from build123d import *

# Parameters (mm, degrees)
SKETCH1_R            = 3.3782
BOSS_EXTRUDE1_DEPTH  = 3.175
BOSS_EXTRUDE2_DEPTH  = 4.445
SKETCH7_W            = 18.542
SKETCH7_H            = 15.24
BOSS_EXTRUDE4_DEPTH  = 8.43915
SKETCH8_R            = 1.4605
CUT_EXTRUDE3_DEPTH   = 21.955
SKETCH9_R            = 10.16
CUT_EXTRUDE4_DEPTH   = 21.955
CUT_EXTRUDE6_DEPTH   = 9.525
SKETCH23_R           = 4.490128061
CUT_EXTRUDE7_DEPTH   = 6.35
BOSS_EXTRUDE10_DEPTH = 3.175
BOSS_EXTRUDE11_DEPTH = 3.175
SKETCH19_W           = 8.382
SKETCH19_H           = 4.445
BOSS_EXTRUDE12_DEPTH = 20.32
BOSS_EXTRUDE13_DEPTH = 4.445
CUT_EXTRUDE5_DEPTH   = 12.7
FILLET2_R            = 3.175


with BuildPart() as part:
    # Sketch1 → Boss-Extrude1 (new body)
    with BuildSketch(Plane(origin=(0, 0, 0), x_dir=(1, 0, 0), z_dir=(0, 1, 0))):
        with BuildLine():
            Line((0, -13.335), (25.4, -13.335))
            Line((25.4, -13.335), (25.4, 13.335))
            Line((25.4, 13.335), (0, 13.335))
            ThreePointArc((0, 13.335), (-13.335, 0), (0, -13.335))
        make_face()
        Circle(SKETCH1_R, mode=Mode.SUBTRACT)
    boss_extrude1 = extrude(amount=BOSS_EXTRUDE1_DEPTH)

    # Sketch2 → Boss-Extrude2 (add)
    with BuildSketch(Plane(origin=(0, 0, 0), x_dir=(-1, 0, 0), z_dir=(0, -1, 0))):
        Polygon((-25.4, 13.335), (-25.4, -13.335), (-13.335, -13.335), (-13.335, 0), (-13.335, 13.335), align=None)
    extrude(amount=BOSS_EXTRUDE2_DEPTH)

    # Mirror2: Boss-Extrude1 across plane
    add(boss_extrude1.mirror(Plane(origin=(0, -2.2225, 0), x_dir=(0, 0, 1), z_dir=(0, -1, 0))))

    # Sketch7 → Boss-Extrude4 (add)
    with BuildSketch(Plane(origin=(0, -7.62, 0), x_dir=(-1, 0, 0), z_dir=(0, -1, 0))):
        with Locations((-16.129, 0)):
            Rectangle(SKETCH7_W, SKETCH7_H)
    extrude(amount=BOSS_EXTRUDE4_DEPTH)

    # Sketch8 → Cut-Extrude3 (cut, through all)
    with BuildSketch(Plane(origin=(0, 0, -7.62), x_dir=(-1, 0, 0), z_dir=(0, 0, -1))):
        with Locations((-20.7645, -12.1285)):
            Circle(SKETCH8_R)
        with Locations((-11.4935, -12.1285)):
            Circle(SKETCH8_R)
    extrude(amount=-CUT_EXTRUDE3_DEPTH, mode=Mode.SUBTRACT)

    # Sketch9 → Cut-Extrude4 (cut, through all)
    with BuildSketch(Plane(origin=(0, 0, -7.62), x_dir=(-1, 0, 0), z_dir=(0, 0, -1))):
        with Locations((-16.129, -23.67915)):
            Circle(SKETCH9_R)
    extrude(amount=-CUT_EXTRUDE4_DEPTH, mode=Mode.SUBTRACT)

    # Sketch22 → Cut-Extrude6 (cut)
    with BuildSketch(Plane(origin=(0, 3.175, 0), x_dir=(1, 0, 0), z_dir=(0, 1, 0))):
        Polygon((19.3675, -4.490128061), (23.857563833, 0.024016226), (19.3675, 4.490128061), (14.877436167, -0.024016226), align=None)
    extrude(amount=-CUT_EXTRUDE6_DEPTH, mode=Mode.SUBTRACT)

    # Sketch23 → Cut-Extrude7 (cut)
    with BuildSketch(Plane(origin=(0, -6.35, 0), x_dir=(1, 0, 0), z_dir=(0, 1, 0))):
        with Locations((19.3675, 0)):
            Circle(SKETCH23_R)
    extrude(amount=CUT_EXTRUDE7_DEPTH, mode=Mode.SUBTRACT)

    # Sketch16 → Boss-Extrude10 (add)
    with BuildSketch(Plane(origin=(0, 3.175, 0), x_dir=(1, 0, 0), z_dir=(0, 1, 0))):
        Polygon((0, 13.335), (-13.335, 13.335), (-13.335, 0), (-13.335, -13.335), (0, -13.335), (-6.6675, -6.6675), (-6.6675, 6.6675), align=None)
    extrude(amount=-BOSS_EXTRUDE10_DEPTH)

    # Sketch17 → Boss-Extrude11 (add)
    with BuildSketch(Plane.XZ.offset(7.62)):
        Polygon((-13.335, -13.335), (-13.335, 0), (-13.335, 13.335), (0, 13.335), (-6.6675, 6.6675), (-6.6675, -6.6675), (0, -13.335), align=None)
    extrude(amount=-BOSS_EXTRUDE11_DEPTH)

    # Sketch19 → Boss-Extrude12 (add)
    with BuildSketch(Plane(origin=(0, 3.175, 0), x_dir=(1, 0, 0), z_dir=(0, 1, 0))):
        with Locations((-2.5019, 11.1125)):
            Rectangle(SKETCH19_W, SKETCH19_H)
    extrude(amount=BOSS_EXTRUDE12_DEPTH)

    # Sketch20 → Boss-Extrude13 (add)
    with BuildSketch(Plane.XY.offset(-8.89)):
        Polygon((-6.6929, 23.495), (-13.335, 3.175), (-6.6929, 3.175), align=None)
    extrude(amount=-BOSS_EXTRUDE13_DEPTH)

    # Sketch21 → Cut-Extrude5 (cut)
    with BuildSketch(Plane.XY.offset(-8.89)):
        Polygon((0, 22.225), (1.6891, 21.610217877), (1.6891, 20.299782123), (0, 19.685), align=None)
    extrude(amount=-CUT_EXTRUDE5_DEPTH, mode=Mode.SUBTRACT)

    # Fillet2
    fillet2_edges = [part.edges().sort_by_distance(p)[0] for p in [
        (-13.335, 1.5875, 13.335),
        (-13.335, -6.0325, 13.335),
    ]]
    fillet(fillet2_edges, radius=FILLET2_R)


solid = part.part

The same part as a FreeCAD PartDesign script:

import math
import FreeCAD as App
import Part
import Sketcher
from FreeCAD import Vector
Q = App.Units.Quantity


def edges_at(feature, points):
    """Names of the edges that pass closest to the given points."""
    edges = feature.Shape.Edges
    near = lambda p: min(range(len(edges)), key=lambda i: edges[i].distToShape(Part.Vertex(*p))[0])
    return sorted({f"Edge{near(p) + 1}" for p in points})


def add_polygon(sketch, points):
    """Adds a closed chain of lines whose ends are joined by coincident constraints."""
    first, n = sketch.GeometryCount, len(points)
    for a, b in zip(points, points[1:] + points[:1]):
        sketch.addGeometry(Part.LineSegment(App.Vector(*a, 0), App.Vector(*b, 0)), False)
    for i in range(n):
        sketch.addConstraint(Sketcher.Constraint("Coincident", first + i, 2, first + (i + 1) % n, 1))

doc = App.newDocument("Part")
body = doc.addObject("PartDesign::Body", "Body")

# Sketch on XZ plane
sketch1 = body.newObject("Sketcher::SketchObject", "Sketch")
sketch1.AttachmentSupport = (doc.getObject("XZ_Plane"), [""])
sketch1.MapMode = "FlatFace"
sketch1.addGeometry([
    Part.LineSegment(Vector(0, 13.3, 0), Vector(25.4, 13.3, 0)),  # 0
    Part.LineSegment(Vector(25.4, 13.3, 0), Vector(25.4, -13.3, 0)),  # 1
    Part.LineSegment(Vector(25.4, -13.3, 0), Vector(0, -13.3, 0)),  # 2
    Part.ArcOfCircle(Part.Circle(Vector(0, 0, 0), Vector(0, 0, 1), 13.3), math.radians(90), math.radians(270)),  # 3
    Part.Circle(Vector(0, 0, 0), Vector(0, 0, 1), 3.4),  # 4
], False)
sketch1.addConstraint([
    Sketcher.Constraint("Coincident", 0, 2, 1, 1),
    Sketcher.Constraint("Coincident", 1, 2, 2, 1),
    Sketcher.Constraint("Tangent", 2, 2, 3, 2),
    Sketcher.Constraint("Tangent", 3, 1, 0, 1),
    Sketcher.Constraint("Horizontal", 0),
    Sketcher.Constraint("Vertical", 1),
    Sketcher.Constraint("Horizontal", 2),
    Sketcher.Constraint("Coincident", 3, 3, -1, 1),
    Sketcher.Constraint("Coincident", 4, 3, -1, 1),
    Sketcher.Constraint("DistanceX", 0, 1, 0, 2, Q("1 in")),
    Sketcher.Constraint("Diameter", 4, Q("0.266 in")),
    Sketcher.Constraint("Radius", 3, Q("0.525 in")),
])
pad1 = body.newObject("PartDesign::Pad", "Pad")
pad1.Profile = sketch1
pad1.Length = Q("0.125 in")
pad1.Reversed = True

# Sketch on XZ plane
sketch2 = body.newObject("Sketcher::SketchObject", "Sketch001")
sketch2.AttachmentSupport = (doc.getObject("XZ_Plane"), [""])
sketch2.MapMode = "FlatFace"
add_polygon(sketch2, [(25, -13), (25, 13), (13, 13), (13, -13)])  # lines 0-3
sketch2.addConstraint([
    Sketcher.Constraint("Vertical", 0),
    Sketcher.Constraint("Horizontal", 1),
    Sketcher.Constraint("Vertical", 2),
    Sketcher.Constraint("Horizontal", 3),
    Sketcher.Constraint("DistanceX", -1, 1, 0, 2, Q("1 in")),
    Sketcher.Constraint("DistanceY", 0, 1, 0, 2, Q("1.05 in")),
    Sketcher.Constraint("DistanceX", 1, 2, 1, 1, Q("0.475 in")),
    Sketcher.Constraint("DistanceY", -1, 1, 0, 2, Q("0.525 in")),
])
pad2 = body.newObject("PartDesign::Pad", "Pad001")
pad2.Profile = sketch2
pad2.Length = Q("0.175 in")
doc.recompute()

datumplane = body.newObject("PartDesign::Plane", "DatumPlane")
datumplane.AttachmentSupport = (doc.getObject("XZ_Plane"), [""])
datumplane.MapMode = "FlatFace"
datumplane.AttachmentOffset = App.Placement(Vector(0, 0, 0.0875 * 25.4), App.Rotation())
mirrored = body.newObject("PartDesign::Mirrored", "Mirrored")
mirrored.Originals = [pad1]
mirrored.MirrorPlane = (datumplane, [""])
body.Tip = mirrored

# Sketch on XZ plane
sketch3 = body.newObject("Sketcher::SketchObject", "Sketch002")
sketch3.AttachmentSupport = (doc.getObject("XZ_Plane"), [""])
sketch3.MapMode = "FlatFace"
sketch3.AttachmentOffset = App.Placement(Vector(0, 0, 0.3 * 25.4), App.Rotation())
add_polygon(sketch3, [(25, -8), (25, 8), (7, 8), (7, -8)])  # lines 0-3
sketch3.addConstraint([
    Sketcher.Constraint("Vertical", 0),
    Sketcher.Constraint("Horizontal", 1),
    Sketcher.Constraint("Vertical", 2),
    Sketcher.Constraint("Horizontal", 3),
    Sketcher.Constraint("DistanceY", 0, 1, 0, 2, Q("0.6 in")),
    Sketcher.Constraint("DistanceX", -1, 1, 0, 2, Q("1 in")),
    Sketcher.Constraint("DistanceX", 1, 2, 1, 1, Q("0.73 in")),
    Sketcher.Constraint("DistanceY", -1, 1, 0, 2, Q("0.3 in")),
])
pad3 = body.newObject("PartDesign::Pad", "Pad002")
pad3.Profile = sketch3
pad3.Length = 8.43915

# Sketch on XY plane
sketch4 = body.newObject("Sketcher::SketchObject", "Sketch003")
sketch4.AttachmentSupport = (doc.getObject("XY_Plane"), [""])
sketch4.MapMode = "FlatFace"
sketch4.AttachmentOffset = App.Placement(Vector(0, 0, -0.3 * 25.4), App.Rotation())
sketch4.addGeometry([
    Part.Circle(Vector(20.8, -12.1, 0), Vector(0, 0, 1), 1.5),
    Part.Circle(Vector(11.5, -12.1, 0), Vector(0, 0, 1), 1.5),
], False)
sketch4.addConstraint([
    Sketcher.Constraint("Equal", 0, 1),
    Sketcher.Constraint("Horizontal", 0, 3, 1, 3),
    Sketcher.Constraint("Diameter", 0, Q("0.115 in")),
    Sketcher.Constraint("DistanceX", 1, 3, 0, 3, Q("0.365 in")),
    Sketcher.Constraint("DistanceX", -1, 1, 0, 3, Q("0.8175 in")),
    Sketcher.Constraint("DistanceY", 0, 3, -1, 1, Q("0.4775 in")),
])
pocket1 = body.newObject("PartDesign::Pocket", "Pocket")
pocket1.Profile = sketch4
pocket1.Type = "ThroughAll"
pocket1.Reversed = True

# Sketch on XY plane
sketch5 = body.newObject("Sketcher::SketchObject", "Sketch004")
sketch5.AttachmentSupport = (doc.getObject("XY_Plane"), [""])
sketch5.MapMode = "FlatFace"
sketch5.AttachmentOffset = App.Placement(Vector(0, 0, -0.3 * 25.4), App.Rotation())
sketch5.addGeometry(Part.Circle(Vector(16, -24, 0), Vector(0, 0, 1), 10), False)
sketch5.addConstraint([
    Sketcher.Constraint("Diameter", 0, Q("0.8 in")),
    Sketcher.Constraint("DistanceX", -1, 1, 0, 3, Q("0.635 in")),
    Sketcher.Constraint("DistanceY", 0, 3, -1, 1, 23.67915),
])
pocket2 = body.newObject("PartDesign::Pocket", "Pocket001")
pocket2.Profile = sketch5
pocket2.Type = "ThroughAll"
pocket2.Reversed = True

# Sketch on XZ plane
sketch6 = body.newObject("Sketcher::SketchObject", "Sketch005")
sketch6.AttachmentSupport = (doc.getObject("XZ_Plane"), [""])
sketch6.MapMode = "FlatFace"
sketch6.AttachmentOffset = App.Placement(Vector(0, 0, -0.125 * 25.4), App.Rotation())
add_polygon(sketch6, [(19, 4), (24, 0), (19, -4), (15, 0)])  # lines 0-3
sketch6.addConstraint([
    Sketcher.Constraint("Symmetric", 1, 2, 3, 2, -1),
    Sketcher.Constraint("Perpendicular", 0, 1),
    Sketcher.Constraint("Perpendicular", 1, 2),
    Sketcher.Constraint("Perpendicular", 2, 3),
    Sketcher.Constraint("DistanceX", -1, 1, 1, 2, Q("0.7625 in")),
    Sketcher.Constraint("Distance", 0, 6.366959),
    Sketcher.Constraint("DistanceY", 1, 2, -1, 1, 4.490128),
])
pocket3 = body.newObject("PartDesign::Pocket", "Pocket002")
pocket3.Profile = sketch6
pocket3.Length = Q("0.375 in")
pocket3.Reversed = True

# Sketch on XZ plane
sketch7 = body.newObject("Sketcher::SketchObject", "Sketch006")
sketch7.AttachmentSupport = (doc.getObject("XZ_Plane"), [""])
sketch7.MapMode = "FlatFace"
sketch7.AttachmentOffset = App.Placement(Vector(0, 0, 0.25 * 25.4), App.Rotation())
sketch7.addGeometry(Part.Circle(Vector(19.4, 0, 0), Vector(0, 0, 1), 4.5), False)
sketch7.addConstraint([
    Sketcher.Constraint("PointOnObject", 0, 3, -1),
    Sketcher.Constraint("Diameter", 0, 8.980256),
    Sketcher.Constraint("DistanceX", -1, 1, 0, 3, Q("0.7625 in")),
])
pocket4 = body.newObject("PartDesign::Pocket", "Pocket003")
pocket4.Profile = sketch7
pocket4.Length = Q("0.25 in")

# Sketch on XZ plane
sketch8 = body.newObject("Sketcher::SketchObject", "Sketch007")
sketch8.AttachmentSupport = (doc.getObject("XZ_Plane"), [""])
sketch8.MapMode = "FlatFace"
sketch8.AttachmentOffset = App.Placement(Vector(0, 0, -0.125 * 25.4), App.Rotation())
add_polygon(sketch8, [(0, -13), (-13, -13), (-13, 13), (0, 13), (-7, 7), (-7, -7)])  # lines 0-5
sketch8.addConstraint([
    Sketcher.Constraint("Horizontal", 0),
    Sketcher.Constraint("Vertical", 1),
    Sketcher.Constraint("Horizontal", 2),
    Sketcher.Constraint("Vertical", 4),
    Sketcher.Constraint("Symmetric", 2, 2, 5, 2, -1, 1),
    Sketcher.Constraint("PointOnObject", 2, 2, -2),
    Sketcher.Constraint("Perpendicular", 3, 5),
    Sketcher.Constraint("Equal", 2, 4),
    Sketcher.Constraint("Equal", 3, 5),
    Sketcher.Constraint("DistanceY", 1, 1, 1, 2, Q("1.05 in")),
    Sketcher.Constraint("DistanceX", 0, 2, 0, 1, Q("0.525 in")),
])
pad4 = body.newObject("PartDesign::Pad", "Pad003")
pad4.Profile = sketch8
pad4.Length = Q("0.125 in")

# Sketch on XZ plane
sketch9 = body.newObject("Sketcher::SketchObject", "Sketch008")
sketch9.AttachmentSupport = (doc.getObject("XZ_Plane"), [""])
sketch9.MapMode = "FlatFace"
sketch9.AttachmentOffset = App.Placement(Vector(0, 0, 0.3 * 25.4), App.Rotation())
add_polygon(sketch9, [(-13, 13), (-13, -13), (0, -13), (-7, -7), (-7, 7), (0, 13)])  # lines 0-5
sketch9.addConstraint([
    Sketcher.Constraint("Vertical", 0),
    Sketcher.Constraint("Horizontal", 1),
    Sketcher.Constraint("Vertical", 3),
    Sketcher.Constraint("Horizontal", 5),
    Sketcher.Constraint("Symmetric", 1, 2, 4, 2, -1, 1),
    Sketcher.Constraint("PointOnObject", 1, 2, -2),
    Sketcher.Constraint("Perpendicular", 2, 4),
    Sketcher.Constraint("Equal", 5, 3),
    Sketcher.Constraint("Equal", 2, 4),
    Sketcher.Constraint("DistanceY", 0, 2, 0, 1, Q("1.05 in")),
    Sketcher.Constraint("DistanceX", 1, 1, 1, 2, Q("0.525 in")),
])
pad5 = body.newObject("PartDesign::Pad", "Pad004")
pad5.Profile = sketch9
pad5.Length = Q("0.125 in")
pad5.Reversed = True

# Sketch on XZ plane
sketch10 = body.newObject("Sketcher::SketchObject", "Sketch009")
sketch10.AttachmentSupport = (doc.getObject("XZ_Plane"), [""])
sketch10.MapMode = "FlatFace"
sketch10.AttachmentOffset = App.Placement(Vector(0, 0, -0.125 * 25.4), App.Rotation())
add_polygon(sketch10, [(-6.7, -13.3), (-6.7, -8.9), (1.7, -8.9), (1.7, -13.3)])  # lines 0-3
sketch10.addConstraint([
    Sketcher.Constraint("Vertical", 0),
    Sketcher.Constraint("Horizontal", 1),
    Sketcher.Constraint("Vertical", 2),
    Sketcher.Constraint("Horizontal", 3),
    Sketcher.Constraint("DistanceX", 1, 1, 1, 2, Q("0.33 in")),
    Sketcher.Constraint("DistanceY", 0, 1, 0, 2, Q("0.175 in")),
    Sketcher.Constraint("DistanceY", 0, 2, -1, 1, Q("0.35 in")),
    Sketcher.Constraint("DistanceX", 0, 2, -1, 1, Q("0.2635 in")),
])
pad6 = body.newObject("PartDesign::Pad", "Pad005")
pad6.Profile = sketch10
pad6.Length = Q("0.8 in")
pad6.Reversed = True

# Sketch on XY plane
sketch11 = body.newObject("Sketcher::SketchObject", "Sketch010")
sketch11.AttachmentSupport = (doc.getObject("XY_Plane"), [""])
sketch11.MapMode = "FlatFace"
sketch11.AttachmentOffset = App.Placement(Vector(0, 0, -0.35 * 25.4), App.Rotation())
add_polygon(sketch11, [(-7, 23), (-13, 3), (-7, 3)])  # lines 0-2
sketch11.addConstraint([
    Sketcher.Constraint("Horizontal", 1),
    Sketcher.Constraint("Vertical", 2),
    Sketcher.Constraint("DistanceY", 2, 1, 2, 2, Q("0.8 in")),
    Sketcher.Constraint("DistanceX", 1, 1, 1, 2, Q("0.2615 in")),
    Sketcher.Constraint("DistanceX", 0, 2, -1, 1, Q("0.525 in")),
    Sketcher.Constraint("DistanceY", -1, 1, 0, 2, Q("0.125 in")),
])
pad7 = body.newObject("PartDesign::Pad", "Pad006")
pad7.Profile = sketch11
pad7.Length = Q("0.175 in")
pad7.Reversed = True

# Sketch on XY plane
sketch12 = body.newObject("Sketcher::SketchObject", "Sketch011")
sketch12.AttachmentSupport = (doc.getObject("XY_Plane"), [""])
sketch12.MapMode = "FlatFace"
sketch12.AttachmentOffset = App.Placement(Vector(0, 0, -0.35 * 25.4), App.Rotation())
add_polygon(sketch12, [(1.7, 21.6), (0, 22.2), (0, 19.7), (1.7, 20.3)])  # lines 0-3
sketch12.addConstraint([
    Sketcher.Constraint("Vertical", 1),
    Sketcher.Constraint("Vertical", 3),
    Sketcher.Constraint("PointOnObject", 0, 2, -2),
    Sketcher.Constraint("Equal", 0, 2),
    Sketcher.Constraint("DistanceY", 1, 2, 1, 1, Q("0.1 in")),
    Sketcher.Constraint("Angle", 0, Q("160 deg")),
    Sketcher.Constraint("DistanceY", -1, 1, 0, 2, Q("0.875 in")),
    Sketcher.Constraint("DistanceX", -1, 1, 2, 2, Q("0.0665 in")),
])
pocket5 = body.newObject("PartDesign::Pocket", "Pocket004")
pocket5.Profile = sketch12
pocket5.Length = Q("0.5 in")
doc.recompute()

fillet = body.newObject("PartDesign::Fillet", "Fillet")
fillet.Base = (pocket5, edges_at(pocket5, [(-13.335, 1.587, 13.335), (-13.335, -6.032, 13.335)]))
fillet.Radius = Q("0.125 in")

doc.recompute()
